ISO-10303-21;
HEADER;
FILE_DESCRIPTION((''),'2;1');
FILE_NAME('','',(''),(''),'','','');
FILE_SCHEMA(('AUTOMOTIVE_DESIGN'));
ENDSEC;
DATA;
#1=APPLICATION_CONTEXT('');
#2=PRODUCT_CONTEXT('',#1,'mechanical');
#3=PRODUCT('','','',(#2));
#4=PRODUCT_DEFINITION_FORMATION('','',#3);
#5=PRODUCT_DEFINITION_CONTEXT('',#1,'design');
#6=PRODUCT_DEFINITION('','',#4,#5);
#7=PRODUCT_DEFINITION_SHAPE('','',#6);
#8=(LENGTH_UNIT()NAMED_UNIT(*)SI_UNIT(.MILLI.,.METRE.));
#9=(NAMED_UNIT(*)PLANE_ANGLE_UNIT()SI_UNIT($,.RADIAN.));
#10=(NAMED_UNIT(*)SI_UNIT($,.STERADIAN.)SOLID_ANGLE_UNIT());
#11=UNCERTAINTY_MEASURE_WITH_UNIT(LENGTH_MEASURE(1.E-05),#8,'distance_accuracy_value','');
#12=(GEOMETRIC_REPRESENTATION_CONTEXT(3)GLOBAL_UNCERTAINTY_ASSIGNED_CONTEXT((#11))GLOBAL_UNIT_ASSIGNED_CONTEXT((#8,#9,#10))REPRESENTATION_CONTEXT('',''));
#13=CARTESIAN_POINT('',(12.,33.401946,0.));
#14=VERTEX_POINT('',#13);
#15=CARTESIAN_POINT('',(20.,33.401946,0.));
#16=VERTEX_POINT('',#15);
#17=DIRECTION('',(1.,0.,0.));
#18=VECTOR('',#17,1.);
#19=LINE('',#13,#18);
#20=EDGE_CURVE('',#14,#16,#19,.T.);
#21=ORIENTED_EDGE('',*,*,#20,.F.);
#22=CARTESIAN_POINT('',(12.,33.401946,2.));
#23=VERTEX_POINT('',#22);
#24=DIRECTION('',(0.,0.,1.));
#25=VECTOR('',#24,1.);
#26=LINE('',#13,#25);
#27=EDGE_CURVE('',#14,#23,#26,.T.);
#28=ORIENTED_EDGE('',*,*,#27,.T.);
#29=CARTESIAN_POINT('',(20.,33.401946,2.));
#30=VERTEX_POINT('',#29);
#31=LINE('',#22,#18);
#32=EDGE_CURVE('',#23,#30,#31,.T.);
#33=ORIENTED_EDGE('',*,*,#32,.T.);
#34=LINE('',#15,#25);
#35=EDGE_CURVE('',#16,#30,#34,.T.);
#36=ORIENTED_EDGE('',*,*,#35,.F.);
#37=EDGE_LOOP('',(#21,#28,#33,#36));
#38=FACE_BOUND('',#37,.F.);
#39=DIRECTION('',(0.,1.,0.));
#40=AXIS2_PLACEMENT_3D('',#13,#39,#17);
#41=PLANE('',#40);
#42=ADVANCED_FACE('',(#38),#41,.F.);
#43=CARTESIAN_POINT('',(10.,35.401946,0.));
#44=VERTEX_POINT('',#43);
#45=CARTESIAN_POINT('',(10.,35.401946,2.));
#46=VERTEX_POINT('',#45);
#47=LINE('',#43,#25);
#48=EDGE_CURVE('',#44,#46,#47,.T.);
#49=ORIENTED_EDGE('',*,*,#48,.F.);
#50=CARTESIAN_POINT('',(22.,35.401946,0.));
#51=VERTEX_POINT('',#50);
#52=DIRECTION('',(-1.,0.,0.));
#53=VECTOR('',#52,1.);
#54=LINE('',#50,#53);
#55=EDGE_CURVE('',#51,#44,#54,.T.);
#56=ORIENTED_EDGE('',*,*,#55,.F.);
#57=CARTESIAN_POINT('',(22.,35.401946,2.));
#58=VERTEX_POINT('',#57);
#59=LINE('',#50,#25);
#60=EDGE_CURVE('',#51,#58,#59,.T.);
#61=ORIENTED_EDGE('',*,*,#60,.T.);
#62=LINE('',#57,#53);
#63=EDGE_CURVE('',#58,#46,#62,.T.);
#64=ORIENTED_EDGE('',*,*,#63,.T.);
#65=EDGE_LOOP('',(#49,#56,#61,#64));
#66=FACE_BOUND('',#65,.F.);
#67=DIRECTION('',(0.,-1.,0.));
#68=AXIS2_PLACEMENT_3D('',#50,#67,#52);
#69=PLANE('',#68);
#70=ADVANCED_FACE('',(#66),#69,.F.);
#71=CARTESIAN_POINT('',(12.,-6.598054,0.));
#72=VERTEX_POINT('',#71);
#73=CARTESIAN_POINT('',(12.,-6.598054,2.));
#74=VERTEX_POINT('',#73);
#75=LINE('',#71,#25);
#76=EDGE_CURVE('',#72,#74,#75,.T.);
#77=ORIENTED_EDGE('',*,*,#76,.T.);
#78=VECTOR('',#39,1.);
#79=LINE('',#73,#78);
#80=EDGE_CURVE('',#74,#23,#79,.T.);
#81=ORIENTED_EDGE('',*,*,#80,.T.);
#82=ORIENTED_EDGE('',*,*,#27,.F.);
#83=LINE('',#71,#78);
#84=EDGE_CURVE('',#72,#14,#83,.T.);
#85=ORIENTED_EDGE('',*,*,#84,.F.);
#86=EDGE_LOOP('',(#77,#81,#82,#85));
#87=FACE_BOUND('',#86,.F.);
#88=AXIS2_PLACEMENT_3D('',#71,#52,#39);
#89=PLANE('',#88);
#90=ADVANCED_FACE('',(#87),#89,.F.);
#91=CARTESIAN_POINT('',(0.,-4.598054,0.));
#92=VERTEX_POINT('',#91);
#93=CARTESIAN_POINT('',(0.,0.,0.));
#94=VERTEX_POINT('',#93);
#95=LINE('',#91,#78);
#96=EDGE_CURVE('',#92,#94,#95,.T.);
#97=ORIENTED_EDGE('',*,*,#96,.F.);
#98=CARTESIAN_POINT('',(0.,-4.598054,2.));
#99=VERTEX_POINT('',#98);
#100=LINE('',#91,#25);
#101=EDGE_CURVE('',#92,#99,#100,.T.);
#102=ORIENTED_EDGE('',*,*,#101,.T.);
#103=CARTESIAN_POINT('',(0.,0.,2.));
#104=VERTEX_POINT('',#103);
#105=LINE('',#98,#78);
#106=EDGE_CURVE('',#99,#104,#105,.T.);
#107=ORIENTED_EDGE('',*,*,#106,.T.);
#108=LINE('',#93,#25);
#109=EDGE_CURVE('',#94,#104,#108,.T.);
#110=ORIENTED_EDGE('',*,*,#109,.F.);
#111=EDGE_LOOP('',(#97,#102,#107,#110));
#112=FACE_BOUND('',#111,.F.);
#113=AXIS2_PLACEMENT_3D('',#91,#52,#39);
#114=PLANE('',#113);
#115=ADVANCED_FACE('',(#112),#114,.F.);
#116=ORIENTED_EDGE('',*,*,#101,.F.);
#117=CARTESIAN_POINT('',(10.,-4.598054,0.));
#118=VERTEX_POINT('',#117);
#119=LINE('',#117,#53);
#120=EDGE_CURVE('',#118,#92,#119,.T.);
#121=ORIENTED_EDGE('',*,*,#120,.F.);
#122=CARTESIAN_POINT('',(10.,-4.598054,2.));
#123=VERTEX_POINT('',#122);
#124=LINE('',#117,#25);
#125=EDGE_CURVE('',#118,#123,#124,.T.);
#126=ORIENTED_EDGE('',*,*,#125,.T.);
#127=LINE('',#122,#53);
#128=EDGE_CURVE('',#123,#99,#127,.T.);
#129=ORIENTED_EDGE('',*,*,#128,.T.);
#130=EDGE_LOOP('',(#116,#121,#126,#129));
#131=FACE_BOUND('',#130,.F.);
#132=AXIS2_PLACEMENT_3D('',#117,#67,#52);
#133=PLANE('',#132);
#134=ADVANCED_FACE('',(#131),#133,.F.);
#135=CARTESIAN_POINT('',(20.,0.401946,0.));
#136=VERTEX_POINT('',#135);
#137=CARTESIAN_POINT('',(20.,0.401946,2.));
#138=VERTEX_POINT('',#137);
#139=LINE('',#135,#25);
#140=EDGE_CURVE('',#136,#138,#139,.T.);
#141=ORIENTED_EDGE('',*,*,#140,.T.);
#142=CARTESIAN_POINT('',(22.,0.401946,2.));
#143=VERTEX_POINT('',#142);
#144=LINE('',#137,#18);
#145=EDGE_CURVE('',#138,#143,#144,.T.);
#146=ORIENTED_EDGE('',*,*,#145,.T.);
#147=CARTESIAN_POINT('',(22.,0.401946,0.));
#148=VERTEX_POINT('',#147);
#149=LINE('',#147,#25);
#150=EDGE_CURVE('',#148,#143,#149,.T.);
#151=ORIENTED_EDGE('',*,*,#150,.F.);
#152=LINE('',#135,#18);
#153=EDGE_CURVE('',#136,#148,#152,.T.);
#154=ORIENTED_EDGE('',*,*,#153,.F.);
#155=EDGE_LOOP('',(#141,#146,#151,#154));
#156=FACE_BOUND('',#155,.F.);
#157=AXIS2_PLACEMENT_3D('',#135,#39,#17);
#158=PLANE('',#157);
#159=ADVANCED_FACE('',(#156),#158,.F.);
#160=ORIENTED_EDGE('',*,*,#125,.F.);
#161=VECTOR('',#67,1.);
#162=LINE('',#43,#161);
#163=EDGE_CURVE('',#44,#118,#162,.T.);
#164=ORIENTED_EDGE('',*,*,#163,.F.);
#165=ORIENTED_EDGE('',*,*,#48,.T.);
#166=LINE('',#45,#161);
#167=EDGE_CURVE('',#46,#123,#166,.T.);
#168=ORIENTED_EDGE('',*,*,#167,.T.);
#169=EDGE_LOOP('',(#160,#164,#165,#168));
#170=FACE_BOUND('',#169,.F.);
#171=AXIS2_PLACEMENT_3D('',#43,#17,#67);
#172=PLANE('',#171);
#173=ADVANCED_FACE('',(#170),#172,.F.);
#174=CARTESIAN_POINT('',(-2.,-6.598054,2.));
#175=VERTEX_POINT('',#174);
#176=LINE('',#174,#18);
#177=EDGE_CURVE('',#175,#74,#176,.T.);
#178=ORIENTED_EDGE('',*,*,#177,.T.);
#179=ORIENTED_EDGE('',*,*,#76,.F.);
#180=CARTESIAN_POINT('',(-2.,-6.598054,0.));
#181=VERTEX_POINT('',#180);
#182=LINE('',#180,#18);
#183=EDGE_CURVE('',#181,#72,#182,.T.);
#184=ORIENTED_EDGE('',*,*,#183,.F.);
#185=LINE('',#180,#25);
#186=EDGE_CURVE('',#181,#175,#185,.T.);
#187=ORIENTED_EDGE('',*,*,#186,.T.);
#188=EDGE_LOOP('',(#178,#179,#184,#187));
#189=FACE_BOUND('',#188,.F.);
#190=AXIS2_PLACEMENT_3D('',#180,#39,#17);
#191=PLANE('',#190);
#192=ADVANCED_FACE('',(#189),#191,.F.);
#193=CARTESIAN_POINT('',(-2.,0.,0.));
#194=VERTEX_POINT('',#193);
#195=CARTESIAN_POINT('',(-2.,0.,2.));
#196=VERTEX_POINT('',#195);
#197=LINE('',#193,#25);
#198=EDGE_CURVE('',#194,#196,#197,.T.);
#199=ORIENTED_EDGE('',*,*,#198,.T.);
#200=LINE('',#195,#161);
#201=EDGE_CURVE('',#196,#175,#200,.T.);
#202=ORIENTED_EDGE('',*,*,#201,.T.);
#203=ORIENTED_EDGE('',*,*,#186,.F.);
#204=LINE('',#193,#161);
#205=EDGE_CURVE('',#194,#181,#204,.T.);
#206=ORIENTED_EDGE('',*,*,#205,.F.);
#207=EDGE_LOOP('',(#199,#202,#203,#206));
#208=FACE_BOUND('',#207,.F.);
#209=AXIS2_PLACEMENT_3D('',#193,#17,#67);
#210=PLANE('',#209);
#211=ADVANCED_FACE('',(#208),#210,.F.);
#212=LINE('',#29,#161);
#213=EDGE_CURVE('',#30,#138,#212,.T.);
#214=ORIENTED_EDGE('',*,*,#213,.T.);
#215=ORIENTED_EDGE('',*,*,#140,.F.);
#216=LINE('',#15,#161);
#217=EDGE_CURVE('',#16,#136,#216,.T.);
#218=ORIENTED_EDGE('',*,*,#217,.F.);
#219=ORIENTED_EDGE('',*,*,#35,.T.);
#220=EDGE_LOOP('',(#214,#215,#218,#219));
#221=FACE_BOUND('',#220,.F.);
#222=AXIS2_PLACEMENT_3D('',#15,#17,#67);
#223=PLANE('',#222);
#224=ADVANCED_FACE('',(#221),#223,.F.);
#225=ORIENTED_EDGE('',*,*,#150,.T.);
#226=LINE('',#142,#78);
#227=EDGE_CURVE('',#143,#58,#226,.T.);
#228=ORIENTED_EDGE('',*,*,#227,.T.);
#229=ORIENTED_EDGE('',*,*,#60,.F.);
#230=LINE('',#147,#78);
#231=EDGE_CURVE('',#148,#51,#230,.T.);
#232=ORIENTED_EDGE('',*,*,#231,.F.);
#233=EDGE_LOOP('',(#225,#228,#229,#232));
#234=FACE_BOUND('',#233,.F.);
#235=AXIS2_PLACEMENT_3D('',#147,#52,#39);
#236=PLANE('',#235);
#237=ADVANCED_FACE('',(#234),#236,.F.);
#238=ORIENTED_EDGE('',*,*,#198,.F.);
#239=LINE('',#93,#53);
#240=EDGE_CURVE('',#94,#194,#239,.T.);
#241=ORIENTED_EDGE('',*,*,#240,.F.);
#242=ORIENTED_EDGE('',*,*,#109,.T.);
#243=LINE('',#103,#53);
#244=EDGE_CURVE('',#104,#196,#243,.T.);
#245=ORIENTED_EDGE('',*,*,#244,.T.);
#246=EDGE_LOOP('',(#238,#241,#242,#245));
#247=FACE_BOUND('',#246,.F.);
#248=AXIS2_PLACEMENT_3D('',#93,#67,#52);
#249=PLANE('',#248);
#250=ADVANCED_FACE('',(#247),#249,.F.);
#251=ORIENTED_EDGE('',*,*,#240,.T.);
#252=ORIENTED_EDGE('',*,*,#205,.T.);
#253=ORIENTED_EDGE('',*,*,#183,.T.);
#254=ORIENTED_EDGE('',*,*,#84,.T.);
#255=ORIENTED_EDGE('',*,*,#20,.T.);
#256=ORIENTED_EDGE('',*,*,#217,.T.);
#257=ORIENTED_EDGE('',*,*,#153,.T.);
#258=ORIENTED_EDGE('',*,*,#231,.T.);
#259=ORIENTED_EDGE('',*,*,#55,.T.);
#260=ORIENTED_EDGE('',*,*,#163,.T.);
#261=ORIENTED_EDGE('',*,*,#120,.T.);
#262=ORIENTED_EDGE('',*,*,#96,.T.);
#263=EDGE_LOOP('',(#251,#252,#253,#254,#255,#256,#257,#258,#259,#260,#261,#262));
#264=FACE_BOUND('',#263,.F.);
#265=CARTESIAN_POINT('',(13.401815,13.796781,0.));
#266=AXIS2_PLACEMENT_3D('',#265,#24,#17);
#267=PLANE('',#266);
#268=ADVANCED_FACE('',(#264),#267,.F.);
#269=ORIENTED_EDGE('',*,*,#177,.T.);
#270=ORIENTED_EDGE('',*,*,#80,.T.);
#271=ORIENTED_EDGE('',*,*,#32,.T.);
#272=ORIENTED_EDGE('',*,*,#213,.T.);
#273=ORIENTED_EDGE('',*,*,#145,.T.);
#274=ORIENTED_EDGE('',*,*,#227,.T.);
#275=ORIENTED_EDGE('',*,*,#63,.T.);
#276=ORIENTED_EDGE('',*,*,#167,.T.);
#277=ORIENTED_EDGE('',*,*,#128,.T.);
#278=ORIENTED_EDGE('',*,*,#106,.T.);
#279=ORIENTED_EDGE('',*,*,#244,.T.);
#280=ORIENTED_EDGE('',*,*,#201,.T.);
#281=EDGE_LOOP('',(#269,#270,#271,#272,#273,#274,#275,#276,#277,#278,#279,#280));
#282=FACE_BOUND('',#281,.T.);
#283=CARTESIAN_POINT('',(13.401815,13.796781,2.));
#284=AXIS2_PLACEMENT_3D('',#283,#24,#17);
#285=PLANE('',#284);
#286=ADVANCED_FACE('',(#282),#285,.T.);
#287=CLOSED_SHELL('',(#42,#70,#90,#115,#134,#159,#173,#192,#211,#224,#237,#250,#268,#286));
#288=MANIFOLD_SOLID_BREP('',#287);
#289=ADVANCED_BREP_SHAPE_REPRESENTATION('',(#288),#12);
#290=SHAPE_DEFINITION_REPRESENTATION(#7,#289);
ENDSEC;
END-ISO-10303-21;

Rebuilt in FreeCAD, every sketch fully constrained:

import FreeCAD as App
import Part
import Sketcher

V = App.Vector
Q = App.Units.Quantity

doc = App.newDocument("Part")
body = doc.addObject("PartDesign::Body", "Body")

sketch1 = doc.addObject("Sketcher::SketchObject", "Sketch")
body.addObject(sketch1)
sketch1.AttachmentSupport = (doc.XY_Plane, [""])
sketch1.MapMode = "FlatFace"
sketch1.addGeometry(Part.LineSegment(V(0, 0, 0), V(-2, 0, 0)), False)
sketch1.addGeometry(Part.LineSegment(V(-2, 0, 0), V(-2, -6.6, 0)), False)
sketch1.addGeometry(Part.LineSegment(V(-2, -6.6, 0), V(12, -6.6, 0)), False)
sketch1.addGeometry(Part.LineSegment(V(12, -6.6, 0), V(12, 33.4, 0)), False)
sketch1.addGeometry(Part.LineSegment(V(12, 33.4, 0), V(20, 33.4, 0)), False)
sketch1.addGeometry(Part.LineSegment(V(20, 33.4, 0), V(20, 0.4, 0)), False)
sketch1.addGeometry(Part.LineSegment(V(20, 0.4, 0), V(22, 0.4, 0)), False)
sketch1.addGeometry(Part.LineSegment(V(22, 0.4, 0), V(22, 35.4, 0)), False)
sketch1.addGeometry(Part.LineSegment(V(22, 35.4, 0), V(10, 35.4, 0)), False)
sketch1.addGeometry(Part.LineSegment(V(10, 35.4, 0), V(10, -4.6, 0)), False)
sketch1.addGeometry(Part.LineSegment(V(10, -4.6, 0), V(0, -4.6, 0)), False)
sketch1.addGeometry(Part.LineSegment(V(0, -4.6, 0), V(0, 0, 0)), False)
sketch1.addConstraint(Sketcher.Constraint("Coincident", 0, 2, 1, 1))
sketch1.addConstraint(Sketcher.Constraint("Coincident", 1, 2, 2, 1))
sketch1.addConstraint(Sketcher.Constraint("Coincident", 2, 2, 3, 1))
sketch1.addConstraint(Sketcher.Constraint("Coincident", 3, 2, 4, 1))
sketch1.addConstraint(Sketcher.Constraint("Coincident", 4, 2, 5, 1))
sketch1.addConstraint(Sketcher.Constraint("Coincident", 5, 2, 6, 1))
sketch1.addConstraint(Sketcher.Constraint("Coincident", 6, 2, 7, 1))
sketch1.addConstraint(Sketcher.Constraint("Coincident", 7, 2, 8, 1))
sketch1.addConstraint(Sketcher.Constraint("Coincident", 8, 2, 9, 1))
sketch1.addConstraint(Sketcher.Constraint("Coincident", 9, 2, 10, 1))
sketch1.addConstraint(Sketcher.Constraint("Coincident", 10, 2, 11, 1))
sketch1.addConstraint(Sketcher.Constraint("Coincident", 11, 2, 0, 1))
sketch1.addConstraint(Sketcher.Constraint("Horizontal", 0))
sketch1.addConstraint(Sketcher.Constraint("Vertical", 1))
sketch1.addConstraint(Sketcher.Constraint("Horizontal", 2))
sketch1.addConstraint(Sketcher.Constraint("Vertical", 3))
sketch1.addConstraint(Sketcher.Constraint("Horizontal", 4))
sketch1.addConstraint(Sketcher.Constraint("Vertical", 5))
sketch1.addConstraint(Sketcher.Constraint("Horizontal", 6))
sketch1.addConstraint(Sketcher.Constraint("Vertical", 7))
sketch1.addConstraint(Sketcher.Constraint("Horizontal", 8))
sketch1.addConstraint(Sketcher.Constraint("Vertical", 9))
sketch1.addConstraint(Sketcher.Constraint("Horizontal", 10))
sketch1.addConstraint(Sketcher.Constraint("Vertical", 11))
sketch1.addConstraint(Sketcher.Constraint("Coincident", 11, 2, -1, 1))
sketch1.addConstraint(Sketcher.Constraint("Equal", 0, 6))
sketch1.addConstraint(Sketcher.Constraint("Equal", 3, 9))
sketch1.addConstraint(Sketcher.Constraint("DistanceX", 0, 2, 0, 1, Q("2 mm")))
sketch1.addConstraint(Sketcher.Constraint("DistanceX", 2, 1, 2, 2, Q("14 mm")))
sketch1.addConstraint(Sketcher.Constraint("DistanceX", 4, 1, 4, 2, Q("8 mm")))
sketch1.addConstraint(Sketcher.Constraint("DistanceX", 8, 2, 8, 1, Q("12 mm")))
sketch1.addConstraint(Sketcher.Constraint("DistanceY", 3, 1, 3, 2, Q("40 mm")))
sketch1.addConstraint(Sketcher.Constraint("DistanceY", 5, 2, 5, 1, Q("33 mm")))
sketch1.addConstraint(Sketcher.Constraint("DistanceY", 7, 1, 7, 2, Q("35 mm")))
sketch1.addConstraint(Sketcher.Constraint("DistanceY", 1, 2, 1, 1, Q("6.598054 mm")))
pad1 = doc.addObject("PartDesign::Pad", "Pad")
body.addObject(pad1)
pad1.Profile = sketch1
pad1.Length = 2

doc.recompute()
